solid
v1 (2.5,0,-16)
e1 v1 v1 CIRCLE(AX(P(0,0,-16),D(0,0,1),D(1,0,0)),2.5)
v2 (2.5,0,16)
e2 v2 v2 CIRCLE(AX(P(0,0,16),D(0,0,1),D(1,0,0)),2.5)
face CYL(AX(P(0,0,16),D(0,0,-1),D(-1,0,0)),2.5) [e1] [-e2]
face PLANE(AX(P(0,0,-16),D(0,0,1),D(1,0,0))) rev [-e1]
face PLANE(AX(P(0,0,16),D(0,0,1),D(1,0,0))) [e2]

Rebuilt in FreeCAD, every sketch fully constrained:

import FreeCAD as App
import Part
import Sketcher

doc = App.newDocument("Part")
body = doc.addObject("PartDesign::Body", "Body")

# Sketch on XY plane
sketch1 = doc.addObject("Sketcher::SketchObject", "Sketch")
body.addObject(sketch1)
sketch1.AttachmentSupport = (doc.XY_Plane, [""])
sketch1.MapMode = "FlatFace"
sketch1.addGeometry(Part.Circle(App.Vector(0, 0, 0), App.Vector(0, 0, 1), 2.5), False)
sketch1.addConstraint([
    Sketcher.Constraint("Coincident", 0, 3, -1, 1),
    Sketcher.Constraint("Diameter", 0, 5.0),
])
pad1 = doc.addObject("PartDesign::Pad", "Pad")
body.addObject(pad1)
pad1.Profile = sketch1
pad1.Length = 32
pad1.Midplane = True

doc.recompute()
